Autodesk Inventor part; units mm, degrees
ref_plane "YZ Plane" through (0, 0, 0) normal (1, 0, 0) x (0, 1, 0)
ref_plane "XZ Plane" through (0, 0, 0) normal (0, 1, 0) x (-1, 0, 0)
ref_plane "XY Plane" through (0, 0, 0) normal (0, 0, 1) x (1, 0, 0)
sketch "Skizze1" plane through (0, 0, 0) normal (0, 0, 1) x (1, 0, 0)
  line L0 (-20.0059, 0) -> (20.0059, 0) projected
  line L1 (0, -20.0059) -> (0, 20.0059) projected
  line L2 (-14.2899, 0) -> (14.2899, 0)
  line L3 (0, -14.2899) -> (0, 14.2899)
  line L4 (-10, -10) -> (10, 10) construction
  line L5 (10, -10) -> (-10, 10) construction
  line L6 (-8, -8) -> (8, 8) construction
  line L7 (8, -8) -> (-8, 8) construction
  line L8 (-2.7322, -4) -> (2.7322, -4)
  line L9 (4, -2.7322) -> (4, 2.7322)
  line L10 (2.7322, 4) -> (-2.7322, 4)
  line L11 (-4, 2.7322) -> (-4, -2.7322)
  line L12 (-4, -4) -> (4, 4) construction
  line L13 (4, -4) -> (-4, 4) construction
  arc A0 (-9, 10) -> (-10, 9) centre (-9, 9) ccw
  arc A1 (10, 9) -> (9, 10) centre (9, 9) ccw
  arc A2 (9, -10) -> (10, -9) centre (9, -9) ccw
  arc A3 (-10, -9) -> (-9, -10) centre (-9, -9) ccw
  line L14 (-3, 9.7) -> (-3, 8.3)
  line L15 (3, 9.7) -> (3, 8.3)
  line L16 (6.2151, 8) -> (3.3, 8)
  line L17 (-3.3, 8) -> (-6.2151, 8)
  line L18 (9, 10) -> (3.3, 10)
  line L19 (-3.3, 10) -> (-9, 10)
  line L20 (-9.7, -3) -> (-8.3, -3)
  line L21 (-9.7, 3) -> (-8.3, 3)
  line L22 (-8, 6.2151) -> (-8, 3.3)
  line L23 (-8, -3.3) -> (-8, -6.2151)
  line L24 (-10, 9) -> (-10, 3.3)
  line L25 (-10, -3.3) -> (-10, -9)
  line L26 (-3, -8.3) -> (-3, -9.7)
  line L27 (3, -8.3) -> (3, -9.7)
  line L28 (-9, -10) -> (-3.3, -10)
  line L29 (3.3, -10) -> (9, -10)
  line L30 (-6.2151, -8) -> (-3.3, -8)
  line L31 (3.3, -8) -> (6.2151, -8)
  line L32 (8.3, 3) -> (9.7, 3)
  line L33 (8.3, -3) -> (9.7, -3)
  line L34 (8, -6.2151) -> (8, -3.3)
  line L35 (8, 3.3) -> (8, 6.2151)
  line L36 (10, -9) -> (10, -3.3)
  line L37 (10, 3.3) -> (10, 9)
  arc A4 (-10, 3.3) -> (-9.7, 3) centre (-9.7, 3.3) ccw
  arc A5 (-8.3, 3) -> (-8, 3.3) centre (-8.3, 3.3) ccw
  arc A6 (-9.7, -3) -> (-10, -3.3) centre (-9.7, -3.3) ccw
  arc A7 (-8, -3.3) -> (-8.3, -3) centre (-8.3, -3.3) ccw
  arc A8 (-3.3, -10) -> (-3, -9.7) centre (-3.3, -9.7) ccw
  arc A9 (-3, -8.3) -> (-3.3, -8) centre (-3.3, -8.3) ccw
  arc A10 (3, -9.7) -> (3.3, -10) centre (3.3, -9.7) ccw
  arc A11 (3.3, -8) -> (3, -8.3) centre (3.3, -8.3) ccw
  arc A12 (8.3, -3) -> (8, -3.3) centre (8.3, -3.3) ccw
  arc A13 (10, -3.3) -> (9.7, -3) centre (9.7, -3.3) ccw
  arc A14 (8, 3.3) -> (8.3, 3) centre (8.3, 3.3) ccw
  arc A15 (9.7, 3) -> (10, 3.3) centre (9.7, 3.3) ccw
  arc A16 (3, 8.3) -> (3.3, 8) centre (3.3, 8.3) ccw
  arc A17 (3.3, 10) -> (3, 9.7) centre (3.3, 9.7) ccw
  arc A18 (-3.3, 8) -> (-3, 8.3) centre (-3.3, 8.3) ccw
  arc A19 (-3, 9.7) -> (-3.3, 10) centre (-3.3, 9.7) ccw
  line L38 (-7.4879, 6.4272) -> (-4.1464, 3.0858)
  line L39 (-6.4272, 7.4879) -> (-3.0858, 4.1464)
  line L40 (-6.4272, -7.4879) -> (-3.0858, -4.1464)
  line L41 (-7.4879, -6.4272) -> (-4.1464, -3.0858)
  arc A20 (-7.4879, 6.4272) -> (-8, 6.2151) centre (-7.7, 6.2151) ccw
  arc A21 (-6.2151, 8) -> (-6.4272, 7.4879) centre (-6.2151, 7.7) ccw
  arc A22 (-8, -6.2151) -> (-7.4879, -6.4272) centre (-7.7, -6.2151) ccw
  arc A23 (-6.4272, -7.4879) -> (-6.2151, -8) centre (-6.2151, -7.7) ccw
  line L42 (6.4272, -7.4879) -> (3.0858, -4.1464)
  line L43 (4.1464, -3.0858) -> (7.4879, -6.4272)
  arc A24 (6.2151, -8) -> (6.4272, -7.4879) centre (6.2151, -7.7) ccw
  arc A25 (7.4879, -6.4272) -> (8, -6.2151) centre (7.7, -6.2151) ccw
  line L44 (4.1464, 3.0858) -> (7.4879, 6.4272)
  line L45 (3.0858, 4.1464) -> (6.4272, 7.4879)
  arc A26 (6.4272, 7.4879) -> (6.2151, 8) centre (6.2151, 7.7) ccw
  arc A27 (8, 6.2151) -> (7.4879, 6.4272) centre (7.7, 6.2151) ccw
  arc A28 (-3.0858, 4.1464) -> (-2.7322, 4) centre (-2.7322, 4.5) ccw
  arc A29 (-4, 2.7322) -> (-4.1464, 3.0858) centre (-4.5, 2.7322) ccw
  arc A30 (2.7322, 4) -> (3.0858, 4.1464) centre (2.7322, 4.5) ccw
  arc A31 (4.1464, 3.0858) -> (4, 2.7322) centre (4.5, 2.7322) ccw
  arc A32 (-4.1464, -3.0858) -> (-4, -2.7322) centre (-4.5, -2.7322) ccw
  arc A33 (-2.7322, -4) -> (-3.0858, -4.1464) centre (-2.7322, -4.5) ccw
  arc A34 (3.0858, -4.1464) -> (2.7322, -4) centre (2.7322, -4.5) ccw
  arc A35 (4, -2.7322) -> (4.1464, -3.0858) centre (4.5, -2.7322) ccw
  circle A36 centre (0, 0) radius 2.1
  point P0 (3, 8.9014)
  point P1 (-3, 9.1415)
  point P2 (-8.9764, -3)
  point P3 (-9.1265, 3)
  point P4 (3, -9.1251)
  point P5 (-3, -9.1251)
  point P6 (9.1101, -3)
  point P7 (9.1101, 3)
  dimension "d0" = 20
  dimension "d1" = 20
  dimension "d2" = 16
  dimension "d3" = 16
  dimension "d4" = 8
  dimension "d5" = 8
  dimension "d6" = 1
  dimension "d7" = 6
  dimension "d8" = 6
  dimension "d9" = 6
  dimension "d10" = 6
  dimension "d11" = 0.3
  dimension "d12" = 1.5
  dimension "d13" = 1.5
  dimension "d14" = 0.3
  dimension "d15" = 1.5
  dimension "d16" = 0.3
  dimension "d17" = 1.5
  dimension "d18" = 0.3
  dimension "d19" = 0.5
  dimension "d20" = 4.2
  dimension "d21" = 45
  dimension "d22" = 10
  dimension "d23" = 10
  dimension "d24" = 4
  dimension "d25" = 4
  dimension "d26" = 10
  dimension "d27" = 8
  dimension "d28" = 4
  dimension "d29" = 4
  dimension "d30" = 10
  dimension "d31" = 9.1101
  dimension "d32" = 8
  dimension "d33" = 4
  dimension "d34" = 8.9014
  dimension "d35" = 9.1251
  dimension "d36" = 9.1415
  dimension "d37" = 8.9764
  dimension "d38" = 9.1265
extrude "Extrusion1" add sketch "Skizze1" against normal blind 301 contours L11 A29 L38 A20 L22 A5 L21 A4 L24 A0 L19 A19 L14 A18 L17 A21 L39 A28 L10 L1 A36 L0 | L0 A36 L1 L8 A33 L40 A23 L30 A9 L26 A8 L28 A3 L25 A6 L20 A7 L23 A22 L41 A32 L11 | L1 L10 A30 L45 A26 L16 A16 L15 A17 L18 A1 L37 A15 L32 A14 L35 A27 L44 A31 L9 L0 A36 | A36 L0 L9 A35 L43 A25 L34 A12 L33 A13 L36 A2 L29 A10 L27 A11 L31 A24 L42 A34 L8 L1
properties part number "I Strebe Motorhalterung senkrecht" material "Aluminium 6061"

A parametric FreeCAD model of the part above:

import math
import FreeCAD as App
import Part
import Sketcher
from FreeCAD import Vector
Q = App.Units.Quantity

doc = App.newDocument("Part")
body = doc.addObject("PartDesign::Body", "Body")

sketch1 = body.newObject("Sketcher::SketchObject", "Sketch")
sketch1.AttachmentSupport = (doc.getObject("XY_Plane"), [""])
sketch1.MapMode = "FlatFace"
sketch1.addGeometry(Part.LineSegment(Vector(-4, 2.7322, 0), Vector(-4, -2.7322, 0)), False)
sketch1.addGeometry(Part.ArcOfCircle(Part.Circle(Vector(-4.5, -2.7322, 0), Vector(0, 0, 1), 0.500066), math.radians(-45), math.radians(0)), False)
sketch1.addGeometry(Part.LineSegment(Vector(-4.1464, -3.0858, 0), Vector(-7.4879, -6.4272, 0)), False)
sketch1.addGeometry(Part.ArcOfCircle(Part.Circle(Vector(-7.7, -6.2151, 0), Vector(0, 0, 1), 0.3), math.radians(180), math.radians(315)), False)
sketch1.addGeometry(Part.LineSegment(Vector(-8, -6.2151, 0), Vector(-8, -3.3, 0)), False)
sketch1.addGeometry(Part.ArcOfCircle(Part.Circle(Vector(-8.3, -3.3, 0), Vector(0, 0, 1), 0.3), math.radians(0), math.radians(90)), False)
sketch1.addGeometry(Part.LineSegment(Vector(-8.3, -3, 0), Vector(-9.7, -3, 0)), False)
sketch1.addGeometry(Part.ArcOfCircle(Part.Circle(Vector(-9.7, -3.3, 0), Vector(0, 0, 1), 0.3), math.radians(90), math.radians(180)), False)
sketch1.addGeometry(Part.LineSegment(Vector(-10, -3.3, 0), Vector(-10, -9, 0)), False)
sketch1.addGeometry(Part.ArcOfCircle(Part.Circle(Vector(-9, -9, 0), Vector(0, 0, 1), 1), math.radians(180), math.radians(270)), False)
sketch1.addGeometry(Part.LineSegment(Vector(-9, -10, 0), Vector(-3.3, -10, 0)), False)
sketch1.addGeometry(Part.ArcOfCircle(Part.Circle(Vector(-3.3, -9.7, 0), Vector(0, 0, 1), 0.3), math.radians(-90), math.radians(0)), False)
sketch1.addGeometry(Part.LineSegment(Vector(-3, -9.7, 0), Vector(-3, -8.3, 0)), False)
sketch1.addGeometry(Part.ArcOfCircle(Part.Circle(Vector(-3.3, -8.3, 0), Vector(0, 0, 1), 0.3), math.radians(0), math.radians(90)), False)
sketch1.addGeometry(Part.LineSegment(Vector(-3.3, -8, 0), Vector(-6.2151, -8, 0)), False)
sketch1.addGeometry(Part.ArcOfCircle(Part.Circle(Vector(-6.2151, -7.7, 0), Vector(0, 0, 1), 0.299955), math.radians(135), math.radians(270)), False)
sketch1.addGeometry(Part.LineSegment(Vector(-6.4272, -7.4879, 0), Vector(-3.0858, -4.1464, 0)), False)
sketch1.addGeometry(Part.ArcOfCircle(Part.Circle(Vector(-2.7322, -4.5, 0), Vector(0, 0, 1), 0.5), math.radians(90), math.radians(135)), False)
sketch1.addGeometry(Part.LineSegment(Vector(-2.7322, -4, 0), Vector(2.7322, -4, 0)), False)
sketch1.addGeometry(Part.ArcOfCircle(Part.Circle(Vector(2.7322, -4.5, 0), Vector(0, 0, 1), 0.500066), math.radians(45), math.radians(90)), False)
sketch1.addGeometry(Part.LineSegment(Vector(3.0858, -4.1464, 0), Vector(6.4272, -7.4879, 0)), False)
sketch1.addGeometry(Part.ArcOfCircle(Part.Circle(Vector(6.2151, -7.7, 0), Vector(0, 0, 1), 0.3), math.radians(-90), math.radians(45)), False)
sketch1.addGeometry(Part.LineSegment(Vector(6.2151, -8, 0), Vector(3.3, -8, 0)), False)
sketch1.addGeometry(Part.ArcOfCircle(Part.Circle(Vector(3.3, -8.3, 0), Vector(0, 0, 1), 0.3), math.radians(90), math.radians(180)), False)
sketch1.addGeometry(Part.LineSegment(Vector(3, -8.3, 0), Vector(3, -9.7, 0)), False)
sketch1.addGeometry(Part.ArcOfCircle(Part.Circle(Vector(3.3, -9.7, 0), Vector(0, 0, 1), 0.3), math.radians(180), math.radians(270)), False)
sketch1.addGeometry(Part.LineSegment(Vector(3.3, -10, 0), Vector(9, -10, 0)), False)
sketch1.addGeometry(Part.ArcOfCircle(Part.Circle(Vector(9, -9, 0), Vector(0, 0, 1), 1), math.radians(-90), math.radians(0)), False)
sketch1.addGeometry(Part.LineSegment(Vector(10, -9, 0), Vector(10, -3.3, 0)), False)
sketch1.addGeometry(Part.ArcOfCircle(Part.Circle(Vector(9.7, -3.3, 0), Vector(0, 0, 1), 0.3), math.radians(0), math.radians(90)), False)
sketch1.addGeometry(Part.LineSegment(Vector(9.7, -3, 0), Vector(8.3, -3, 0)), False)
sketch1.addGeometry(Part.ArcOfCircle(Part.Circle(Vector(8.3, -3.3, 0), Vector(0, 0, 1), 0.3), math.radians(90), math.radians(180)), False)
sketch1.addGeometry(Part.LineSegment(Vector(8, -3.3, 0), Vector(8, -6.2151, 0)), False)
sketch1.addGeometry(Part.ArcOfCircle(Part.Circle(Vector(7.7, -6.2151, 0), Vector(0, 0, 1), 0.299955), math.radians(-135), math.radians(0)), False)
sketch1.addGeometry(Part.LineSegment(Vector(7.4879, -6.4272, 0), Vector(4.1464, -3.0858, 0)), False)
sketch1.addGeometry(Part.ArcOfCircle(Part.Circle(Vector(4.5, -2.7322, 0), Vector(0, 0, 1), 0.5), math.radians(180), math.radians(225)), False)
sketch1.addGeometry(Part.LineSegment(Vector(4, -2.7322, 0), Vector(4, 2.7322, 0)), False)
sketch1.addGeometry(Part.ArcOfCircle(Part.Circle(Vector(4.5, 2.7322, 0), Vector(0, 0, 1), 0.500066), math.radians(135), math.radians(180)), False)
sketch1.addGeometry(Part.LineSegment(Vector(4.1464, 3.0858, 0), Vector(7.4879, 6.4272, 0)), False)
sketch1.addGeometry(Part.ArcOfCircle(Part.Circle(Vector(7.7, 6.2151, 0), Vector(0, 0, 1), 0.3), math.radians(0), math.radians(135)), False)
sketch1.addGeometry(Part.LineSegment(Vector(8, 6.2151, 0), Vector(8, 3.3, 0)), False)
sketch1.addGeometry(Part.ArcOfCircle(Part.Circle(Vector(8.3, 3.3, 0), Vector(0, 0, 1), 0.3), math.radians(180), math.radians(270)), False)
sketch1.addGeometry(Part.LineSegment(Vector(8.3, 3, 0), Vector(9.7, 3, 0)), False)
sketch1.addGeometry(Part.ArcOfCircle(Part.Circle(Vector(9.7, 3.3, 0), Vector(0, 0, 1), 0.3), math.radians(-90), math.radians(0)), False)
sketch1.addGeometry(Part.LineSegment(Vector(10, 3.3, 0), Vector(10, 9, 0)), False)
sketch1.addGeometry(Part.ArcOfCircle(Part.Circle(Vector(9, 9, 0), Vector(0, 0, 1), 1), math.radians(0), math.radians(90)), False)
sketch1.addGeometry(Part.LineSegment(Vector(9, 10, 0), Vector(3.3, 10, 0)), False)
sketch1.addGeometry(Part.ArcOfCircle(Part.Circle(Vector(3.3, 9.7, 0), Vector(0, 0, 1), 0.3), math.radians(90), math.radians(180)), False)
sketch1.addGeometry(Part.LineSegment(Vector(3, 9.7, 0), Vector(3, 8.3, 0)), False)
sketch1.addGeometry(Part.ArcOfCircle(Part.Circle(Vector(3.3, 8.3, 0), Vector(0, 0, 1), 0.3), math.radians(180), math.radians(270)), False)
sketch1.addGeometry(Part.LineSegment(Vector(3.3, 8, 0), Vector(6.2151, 8, 0)), False)
sketch1.addGeometry(Part.ArcOfCircle(Part.Circle(Vector(6.2151, 7.7, 0), Vector(0, 0, 1), 0.299955), math.radians(-45), math.radians(90)), False)
sketch1.addGeometry(Part.LineSegment(Vector(6.4272, 7.4879, 0), Vector(3.0858, 4.1464, 0)), False)
sketch1.addGeometry(Part.ArcOfCircle(Part.Circle(Vector(2.7322, 4.5, 0), Vector(0, 0, 1), 0.5), math.radians(-90), math.radians(-45)), False)
sketch1.addGeometry(Part.LineSegment(Vector(2.7322, 4, 0), Vector(-2.7322, 4, 0)), False)
sketch1.addGeometry(Part.ArcOfCircle(Part.Circle(Vector(-2.7322, 4.5, 0), Vector(0, 0, 1), 0.500066), math.radians(-135), math.radians(-90)), False)
sketch1.addGeometry(Part.LineSegment(Vector(-3.0858, 4.1464, 0), Vector(-6.4272, 7.4879, 0)), False)
sketch1.addGeometry(Part.ArcOfCircle(Part.Circle(Vector(-6.2151, 7.7, 0), Vector(0, 0, 1), 0.3), math.radians(90), math.radians(225)), False)
sketch1.addGeometry(Part.LineSegment(Vector(-6.2151, 8, 0), Vector(-3.3, 8, 0)), False)
sketch1.addGeometry(Part.ArcOfCircle(Part.Circle(Vector(-3.3, 8.3, 0), Vector(0, 0, 1), 0.3), math.radians(-90), math.radians(0)), False)
sketch1.addGeometry(Part.LineSegment(Vector(-3, 8.3, 0), Vector(-3, 9.7, 0)), False)
sketch1.addGeometry(Part.ArcOfCircle(Part.Circle(Vector(-3.3, 9.7, 0), Vector(0, 0, 1), 0.3), math.radians(0), math.radians(90)), False)
sketch1.addGeometry(Part.LineSegment(Vector(-3.3, 10, 0), Vector(-9, 10, 0)), False)
sketch1.addGeometry(Part.ArcOfCircle(Part.Circle(Vector(-9, 9, 0), Vector(0, 0, 1), 1), math.radians(90), math.radians(180)), False)
sketch1.addGeometry(Part.LineSegment(Vector(-10, 9, 0), Vector(-10, 3.3, 0)), False)
sketch1.addGeometry(Part.ArcOfCircle(Part.Circle(Vector(-9.7, 3.3, 0), Vector(0, 0, 1), 0.3), math.radians(180), math.radians(270)), False)
sketch1.addGeometry(Part.LineSegment(Vector(-9.7, 3, 0), Vector(-8.3, 3, 0)), False)
sketch1.addGeometry(Part.ArcOfCircle(Part.Circle(Vector(-8.3, 3.3, 0), Vector(0, 0, 1), 0.3), math.radians(-90), math.radians(0)), False)
sketch1.addGeometry(Part.LineSegment(Vector(-8, 3.3, 0), Vector(-8, 6.2151, 0)), False)
sketch1.addGeometry(Part.ArcOfCircle(Part.Circle(Vector(-7.7, 6.2151, 0), Vector(0, 0, 1), 0.299955), math.radians(45), math.radians(180)), False)
sketch1.addGeometry(Part.LineSegment(Vector(-7.4879, 6.4272, 0), Vector(-4.1464, 3.0858, 0)), False)
sketch1.addGeometry(Part.ArcOfCircle(Part.Circle(Vector(-4.5, 2.7322, 0), Vector(0, 0, 1), 0.5), math.radians(0), math.radians(45)), False)
sketch1.addGeometry(Part.Circle(Vector(0, 0, 0), Vector(0, 0, 1), 2.1), False)
sketch1.addConstraint(Sketcher.Constraint("Tangent", 0, 2, 1, 2))
sketch1.addConstraint(Sketcher.Constraint("Tangent", 1, 1, 2, 1))
sketch1.addConstraint(Sketcher.Constraint("Tangent", 2, 2, 3, 2))
sketch1.addConstraint(Sketcher.Constraint("Tangent", 3, 1, 4, 1))
sketch1.addConstraint(Sketcher.Constraint("Tangent", 4, 2, 5, 1))
sketch1.addConstraint(Sketcher.Constraint("Tangent", 5, 2, 6, 1))
sketch1.addConstraint(Sketcher.Constraint("Tangent", 6, 2, 7, 1))
sketch1.addConstraint(Sketcher.Constraint("Tangent", 7, 2, 8, 1))
sketch1.addConstraint(Sketcher.Constraint("Tangent", 8, 2, 9, 1))
sketch1.addConstraint(Sketcher.Constraint("Tangent", 9, 2, 10, 1))
sketch1.addConstraint(Sketcher.Constraint("Tangent", 10, 2, 11, 1))
sketch1.addConstraint(Sketcher.Constraint("Tangent", 11, 2, 12, 1))
sketch1.addConstraint(Sketcher.Constraint("Tangent", 12, 2, 13, 1))
sketch1.addConstraint(Sketcher.Constraint("Tangent", 13, 2, 14, 1))
sketch1.addConstraint(Sketcher.Constraint("Tangent", 14, 2, 15, 2))
sketch1.addConstraint(Sketcher.Constraint("Tangent", 15, 1, 16, 1))
sketch1.addConstraint(Sketcher.Constraint("Tangent", 16, 2, 17, 2))
sketch1.addConstraint(Sketcher.Constraint("Tangent", 17, 1, 18, 1))
sketch1.addConstraint(Sketcher.Constraint("Tangent", 18, 2, 19, 2))
sketch1.addConstraint(Sketcher.Constraint("Tangent", 19, 1, 20, 1))
sketch1.addConstraint(Sketcher.Constraint("Tangent", 20, 2, 21, 2))
sketch1.addConstraint(Sketcher.Constraint("Tangent", 21, 1, 22, 1))
sketch1.addConstraint(Sketcher.Constraint("Tangent", 22, 2, 23, 1))
sketch1.addConstraint(Sketcher.Constraint("Tangent", 23, 2, 24, 1))
sketch1.addConstraint(Sketcher.Constraint("Tangent", 24, 2, 25, 1))
sketch1.addConstraint(Sketcher.Constraint("Tangent", 25, 2, 26, 1))
sketch1.addConstraint(Sketcher.Constraint("Tangent", 26, 2, 27, 1))
sketch1.addConstraint(Sketcher.Constraint("Tangent", 27, 2, 28, 1))
sketch1.addConstraint(Sketcher.Constraint("Tangent", 28, 2, 29, 1))
sketch1.addConstraint(Sketcher.Constraint("Tangent", 29, 2, 30, 1))
sketch1.addConstraint(Sketcher.Constraint("Tangent", 30, 2, 31, 1))
sketch1.addConstraint(Sketcher.Constraint("Tangent", 31, 2, 32, 1))
sketch1.addConstraint(Sketcher.Constraint("Tangent", 32, 2, 33, 2))
sketch1.addConstraint(Sketcher.Constraint("Tangent", 33, 1, 34, 1))
sketch1.addConstraint(Sketcher.Constraint("Tangent", 34, 2, 35, 2))
sketch1.addConstraint(Sketcher.Constraint("Tangent", 35, 1, 36, 1))
sketch1.addConstraint(Sketcher.Constraint("Tangent", 36, 2, 37, 2))
sketch1.addConstraint(Sketcher.Constraint("Tangent", 37, 1, 38, 1))
sketch1.addConstraint(Sketcher.Constraint("Tangent", 38, 2, 39, 2))
sketch1.addConstraint(Sketcher.Constraint("Tangent", 39, 1, 40, 1))
sketch1.addConstraint(Sketcher.Constraint("Tangent", 40, 2, 41, 1))
sketch1.addConstraint(Sketcher.Constraint("Tangent", 41, 2, 42, 1))
sketch1.addConstraint(Sketcher.Constraint("Tangent", 42, 2, 43, 1))
sketch1.addConstraint(Sketcher.Constraint("Tangent", 43, 2, 44, 1))
sketch1.addConstraint(Sketcher.Constraint("Tangent", 44, 2, 45, 1))
sketch1.addConstraint(Sketcher.Constraint("Tangent", 45, 2, 46, 1))
sketch1.addConstraint(Sketcher.Constraint("Tangent", 46, 2, 47, 1))
sketch1.addConstraint(Sketcher.Constraint("Tangent", 47, 2, 48, 1))
sketch1.addConstraint(Sketcher.Constraint("Tangent", 48, 2, 49, 1))
sketch1.addConstraint(Sketcher.Constraint("Tangent", 49, 2, 50, 1))
sketch1.addConstraint(Sketcher.Constraint("Tangent", 50, 2, 51, 2))
sketch1.addConstraint(Sketcher.Constraint("Tangent", 51, 1, 52, 1))
sketch1.addConstraint(Sketcher.Constraint("Tangent", 52, 2, 53, 2))
sketch1.addConstraint(Sketcher.Constraint("Tangent", 53, 1, 54, 1))
sketch1.addConstraint(Sketcher.Constraint("Tangent", 54, 2, 55, 2))
sketch1.addConstraint(Sketcher.Constraint("Tangent", 55, 1, 56, 1))
sketch1.addConstraint(Sketcher.Constraint("Tangent", 56, 2, 57, 2))
sketch1.addConstraint(Sketcher.Constraint("Tangent", 57, 1, 58, 1))
sketch1.addConstraint(Sketcher.Constraint("Tangent", 58, 2, 59, 1))
sketch1.addConstraint(Sketcher.Constraint("Tangent", 59, 2, 60, 1))
sketch1.addConstraint(Sketcher.Constraint("Tangent", 60, 2, 61, 1))
sketch1.addConstraint(Sketcher.Constraint("Tangent", 61, 2, 62, 1))
sketch1.addConstraint(Sketcher.Constraint("Tangent", 62, 2, 63, 1))
sketch1.addConstraint(Sketcher.Constraint("Tangent", 63, 2, 64, 1))
sketch1.addConstraint(Sketcher.Constraint("Tangent", 64, 2, 65, 1))
sketch1.addConstraint(Sketcher.Constraint("Tangent", 65, 2, 66, 1))
sketch1.addConstraint(Sketcher.Constraint("Tangent", 66, 2, 67, 1))
sketch1.addConstraint(Sketcher.Constraint("Tangent", 67, 2, 68, 1))
sketch1.addConstraint(Sketcher.Constraint("Tangent", 68, 2, 69, 2))
sketch1.addConstraint(Sketcher.Constraint("Tangent", 69, 1, 70, 1))
sketch1.addConstraint(Sketcher.Constraint("Tangent", 70, 2, 71, 2))
sketch1.addConstraint(Sketcher.Constraint("Tangent", 71, 1, 0, 1))
sketch1.addConstraint(Sketcher.Constraint("Vertical", 0))
sketch1.addConstraint(Sketcher.Constraint("Vertical", 4))
sketch1.addConstraint(Sketcher.Constraint("Horizontal", 6))
sketch1.addConstraint(Sketcher.Constraint("Vertical", 8))
sketch1.addConstraint(Sketcher.Constraint("Horizontal", 10))
sketch1.addConstraint(Sketcher.Constraint("Vertical", 12))
sketch1.addConstraint(Sketcher.Constraint("Horizontal", 14))
sketch1.addConstraint(Sketcher.Constraint("Horizontal", 18))
sketch1.addConstraint(Sketcher.Constraint("Horizontal", 22))
sketch1.addConstraint(Sketcher.Constraint("Vertical", 24))
sketch1.addConstraint(Sketcher.Constraint("Horizontal", 26))
sketch1.addConstraint(Sketcher.Constraint("Vertical", 28))
sketch1.addConstraint(Sketcher.Constraint("Horizontal", 30))
sketch1.addConstraint(Sketcher.Constraint("Vertical", 32))
sketch1.addConstraint(Sketcher.Constraint("Vertical", 36))
sketch1.addConstraint(Sketcher.Constraint("Vertical", 40))
sketch1.addConstraint(Sketcher.Constraint("Horizontal", 42))
sketch1.addConstraint(Sketcher.Constraint("Vertical", 44))
sketch1.addConstraint(Sketcher.Constraint("Horizontal", 46))
sketch1.addConstraint(Sketcher.Constraint("Vertical", 48))
sketch1.addConstraint(Sketcher.Constraint("Horizontal", 50))
sketch1.addConstraint(Sketcher.Constraint("Horizontal", 54))
sketch1.addConstraint(Sketcher.Constraint("Horizontal", 58))
sketch1.addConstraint(Sketcher.Constraint("Vertical", 60))
sketch1.addConstraint(Sketcher.Constraint("Horizontal", 62))
sketch1.addConstraint(Sketcher.Constraint("Vertical", 64))
sketch1.addConstraint(Sketcher.Constraint("Horizontal", 66))
sketch1.addConstraint(Sketcher.Constraint("Vertical", 68))
sketch1.addConstraint(Sketcher.Constraint("Coincident", 72, 3, -1, 1))
sketch1.addConstraint(Sketcher.Constraint("Equal", 3, 5))
sketch1.addConstraint(Sketcher.Constraint("Equal", 5, 7))
sketch1.addConstraint(Sketcher.Constraint("Equal", 7, 11))
sketch1.addConstraint(Sketcher.Constraint("Equal", 11, 13))
sketch1.addConstraint(Sketcher.Constraint("Equal", 13, 15))
sketch1.addConstraint(Sketcher.Constraint("Equal", 1, 17))
sketch1.addConstraint(Sketcher.Constraint("Equal", 17, 19))
sketch1.addConstraint(Sketcher.Constraint("Equal", 15, 21))
sketch1.addConstraint(Sketcher.Constraint("Equal", 21, 23))
sketch1.addConstraint(Sketcher.Constraint("Equal", 23, 25))
sketch1.addConstraint(Sketcher.Constraint("Equal", 9, 27))
sketch1.addConstraint(Sketcher.Constraint("Equal", 25, 29))
sketch1.addConstraint(Sketcher.Constraint("Equal", 29, 31))
sketch1.addConstraint(Sketcher.Constraint("Equal", 31, 33))
sketch1.addConstraint(Sketcher.Constraint("Equal", 19, 35))
sketch1.addConstraint(Sketcher.Constraint("Equal", 35, 37))
sketch1.addConstraint(Sketcher.Constraint("Equal", 33, 39))
sketch1.addConstraint(Sketcher.Constraint("Equal", 39, 41))
sketch1.addConstraint(Sketcher.Constraint("Equal", 41, 43))
sketch1.addConstraint(Sketcher.Constraint("Equal", 27, 45))
sketch1.addConstraint(Sketcher.Constraint("Equal", 43, 47))
sketch1.addConstraint(Sketcher.Constraint("Equal", 47, 49))
sketch1.addConstraint(Sketcher.Constraint("Equal", 49, 51))
sketch1.addConstraint(Sketcher.Constraint("Equal", 37, 53))
sketch1.addConstraint(Sketcher.Constraint("Equal", 53, 55))
sketch1.addConstraint(Sketcher.Constraint("Equal", 51, 57))
sketch1.addConstraint(Sketcher.Constraint("Equal", 57, 59))
sketch1.addConstraint(Sketcher.Constraint("Equal", 59, 61))
sketch1.addConstraint(Sketcher.Constraint("Equal", 45, 63))
sketch1.addConstraint(Sketcher.Constraint("Equal", 61, 65))
sketch1.addConstraint(Sketcher.Constraint("Equal", 65, 67))
sketch1.addConstraint(Sketcher.Constraint("Equal", 67, 69))
sketch1.addConstraint(Sketcher.Constraint("Equal", 55, 71))
sketch1.addConstraint(Sketcher.Constraint("Symmetric", 1, 3, 37, 3, -1, 1))
sketch1.addConstraint(Sketcher.Constraint("Symmetric", 3, 3, 39, 3, -1, 1))
sketch1.addConstraint(Sketcher.Constraint("Symmetric", 7, 3, 43, 3, -1, 1))
sketch1.addConstraint(Sketcher.Constraint("Symmetric", 11, 3, 47, 3, -1, 1))
sketch1.addConstraint(Sketcher.Constraint("Symmetric", 15, 3, 51, 3, -1, 1))
sketch1.addConstraint(Sketcher.Constraint("Symmetric", 17, 3, 53, 3, -1, 1))
sketch1.addConstraint(Sketcher.Constraint("Symmetric", 21, 3, 57, 3, -1, 1))
sketch1.addConstraint(Sketcher.Constraint("Symmetric", 25, 3, 61, 3, -1, 1))
sketch1.addConstraint(Sketcher.Constraint("Symmetric", 29, 3, 65, 3, -1, 1))
sketch1.addConstraint(Sketcher.Constraint("Symmetric", 33, 3, 69, 3, -1, 1))
sketch1.addConstraint(Sketcher.Constraint("Symmetric", 15, 3, 21, 3, -2))
sketch1.addConstraint(Sketcher.Constraint("Symmetric", 11, 3, 25, 3, -2))
sketch1.addConstraint(Sketcher.Constraint("Symmetric", 7, 3, 29, 3, -2))
sketch1.addConstraint(Sketcher.Constraint("Symmetric", 3, 3, 33, 3, -2))
sketch1.addConstraint(Sketcher.Constraint("Parallel", 2, 16))
sketch1.addConstraint(Sketcher.Constraint("Perpendicular", 16, 20))
sketch1.addConstraint(Sketcher.Constraint("Parallel", 20, 34))
sketch1.addConstraint(Sketcher.Constraint("Perpendicular", 52, 56))
sketch1.addConstraint(Sketcher.Constraint("Parallel", 56, 70))
sketch1.addConstraint(Sketcher.Constraint("Horizontal", 1, 3, 35, 3))
sketch1.addConstraint(Sketcher.Constraint("Equal", 54, 0))
sketch1.addConstraint(Sketcher.Constraint("Equal", 58, 4))
sketch1.addConstraint(Sketcher.Constraint("Equal", 62, 8))
sketch1.addConstraint(Sketcher.Constraint("Equal", 66, 12))
sketch1.addConstraint(Sketcher.Constraint("Equal", 2, 16))
sketch1.addConstraint(Sketcher.Constraint("Radius", 9, Q("1 mm")))
sketch1.addConstraint(Sketcher.Constraint("Diameter", 72, Q("4.2 mm")))
sketch1.addConstraint(Sketcher.Constraint("Radius", 1, Q("0.5 mm")))
sketch1.addConstraint(Sketcher.Constraint("Radius", 3, Q("0.3 mm")))
sketch1.addConstraint(Sketcher.Constraint("DistanceX", 0, 2, -1, 1, Q("4 mm")))
sketch1.addConstraint(Sketcher.Constraint("DistanceX", 3, 1, -1, 1, Q("8 mm")))
sketch1.addConstraint(Sketcher.Constraint("DistanceX", 7, 2, -1, 1, Q("10 mm")))
sketch1.addConstraint(Sketcher.Constraint("DistanceX", 10, 1, 10, 2, Q("5.7 mm")))
sketch1.addConstraint(Sketcher.Constraint("DistanceX", 14, 2, 14, 1, Q("2.915 mm")))
pad1 = body.newObject("PartDesign::Pad", "Pad")
pad1.Profile = sketch1
pad1.Length = 301
pad1.Reversed = True

doc.recompute()
